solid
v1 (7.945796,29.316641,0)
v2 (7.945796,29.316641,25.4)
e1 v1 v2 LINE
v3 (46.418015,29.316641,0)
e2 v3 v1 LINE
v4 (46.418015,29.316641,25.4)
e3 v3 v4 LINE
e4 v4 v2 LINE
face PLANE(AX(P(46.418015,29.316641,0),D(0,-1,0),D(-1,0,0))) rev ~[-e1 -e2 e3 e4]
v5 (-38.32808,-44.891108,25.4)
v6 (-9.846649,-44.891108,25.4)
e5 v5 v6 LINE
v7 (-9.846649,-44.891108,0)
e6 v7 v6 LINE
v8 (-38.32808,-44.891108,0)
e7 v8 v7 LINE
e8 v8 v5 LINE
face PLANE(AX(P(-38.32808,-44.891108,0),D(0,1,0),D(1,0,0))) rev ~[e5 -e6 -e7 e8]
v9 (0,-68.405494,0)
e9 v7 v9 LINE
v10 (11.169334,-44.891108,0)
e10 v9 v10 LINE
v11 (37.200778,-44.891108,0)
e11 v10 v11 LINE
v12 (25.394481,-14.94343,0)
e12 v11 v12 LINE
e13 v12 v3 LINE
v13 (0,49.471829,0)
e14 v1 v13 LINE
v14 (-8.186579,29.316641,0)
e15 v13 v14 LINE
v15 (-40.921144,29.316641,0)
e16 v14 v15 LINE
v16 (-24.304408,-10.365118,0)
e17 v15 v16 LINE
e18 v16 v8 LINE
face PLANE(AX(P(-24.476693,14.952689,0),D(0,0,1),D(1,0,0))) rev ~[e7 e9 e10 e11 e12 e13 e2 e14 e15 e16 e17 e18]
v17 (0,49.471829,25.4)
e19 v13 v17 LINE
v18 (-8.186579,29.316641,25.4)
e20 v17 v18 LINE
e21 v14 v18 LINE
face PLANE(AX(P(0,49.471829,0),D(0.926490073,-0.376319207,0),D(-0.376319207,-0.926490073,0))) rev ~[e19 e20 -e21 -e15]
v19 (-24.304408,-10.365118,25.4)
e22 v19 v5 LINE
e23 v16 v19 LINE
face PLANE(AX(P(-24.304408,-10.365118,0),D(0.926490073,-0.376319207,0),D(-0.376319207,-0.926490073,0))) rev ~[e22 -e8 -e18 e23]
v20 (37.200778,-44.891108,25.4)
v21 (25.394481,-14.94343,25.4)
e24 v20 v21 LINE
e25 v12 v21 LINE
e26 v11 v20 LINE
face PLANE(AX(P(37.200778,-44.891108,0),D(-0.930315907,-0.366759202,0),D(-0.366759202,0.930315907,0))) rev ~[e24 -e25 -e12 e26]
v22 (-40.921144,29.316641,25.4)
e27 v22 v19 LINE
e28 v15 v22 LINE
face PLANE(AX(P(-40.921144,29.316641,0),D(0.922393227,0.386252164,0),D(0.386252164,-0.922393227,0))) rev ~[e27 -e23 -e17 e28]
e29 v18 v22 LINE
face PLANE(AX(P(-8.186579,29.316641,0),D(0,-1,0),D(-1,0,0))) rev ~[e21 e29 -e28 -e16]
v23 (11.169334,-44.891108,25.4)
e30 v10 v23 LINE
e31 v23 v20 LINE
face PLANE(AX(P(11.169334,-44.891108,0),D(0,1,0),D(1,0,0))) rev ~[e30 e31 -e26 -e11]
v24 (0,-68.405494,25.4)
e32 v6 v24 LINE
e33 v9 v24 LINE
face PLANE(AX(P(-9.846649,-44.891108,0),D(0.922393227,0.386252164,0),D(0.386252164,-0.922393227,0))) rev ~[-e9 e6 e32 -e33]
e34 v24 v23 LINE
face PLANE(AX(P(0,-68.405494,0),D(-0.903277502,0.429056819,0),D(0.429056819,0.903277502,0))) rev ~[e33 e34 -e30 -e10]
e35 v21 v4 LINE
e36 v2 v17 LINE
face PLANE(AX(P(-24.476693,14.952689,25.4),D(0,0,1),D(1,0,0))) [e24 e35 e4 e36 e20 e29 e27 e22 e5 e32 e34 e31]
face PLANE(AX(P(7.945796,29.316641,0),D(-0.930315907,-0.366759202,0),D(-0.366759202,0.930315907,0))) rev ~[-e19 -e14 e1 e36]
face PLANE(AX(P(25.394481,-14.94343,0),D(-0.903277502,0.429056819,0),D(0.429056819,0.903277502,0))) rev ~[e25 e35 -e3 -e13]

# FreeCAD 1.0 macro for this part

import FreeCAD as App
import Part
import Sketcher
Q = App.Units.Quantity

doc = App.newDocument("Part")
body = doc.addObject("PartDesign::Body", "Body")

# Sketch on XY plane
sketch1 = doc.addObject("Sketcher::SketchObject", "Sketch")
body.addObject(sketch1)
sketch1.AttachmentSupport = (doc.XY_Plane, [""])
sketch1.MapMode = "FlatFace"
sketch1.addGeometry(Part.LineSegment(App.Vector(-8, 29, 0), App.Vector(-41, 29, 0)), False)
sketch1.addGeometry(Part.LineSegment(App.Vector(-41, 29, 0), App.Vector(-24, -10, 0)), False)
sketch1.addGeometry(Part.LineSegment(App.Vector(-24, -10, 0), App.Vector(-38, -45, 0)), False)
sketch1.addGeometry(Part.LineSegment(App.Vector(-38, -45, 0), App.Vector(-10, -45, 0)), False)
sketch1.addGeometry(Part.LineSegment(App.Vector(-10, -45, 0), App.Vector(0, -68, 0)), False)
sketch1.addGeometry(Part.LineSegment(App.Vector(0, -68, 0), App.Vector(11, -45, 0)), False)
sketch1.addGeometry(Part.LineSegment(App.Vector(11, -45, 0), App.Vector(37, -45, 0)), False)
sketch1.addGeometry(Part.LineSegment(App.Vector(37, -45, 0), App.Vector(25, -15, 0)), False)
sketch1.addGeometry(Part.LineSegment(App.Vector(25, -15, 0), App.Vector(46, 29, 0)), False)
sketch1.addGeometry(Part.LineSegment(App.Vector(46, 29, 0), App.Vector(8, 29, 0)), False)
sketch1.addGeometry(Part.LineSegment(App.Vector(8, 29, 0), App.Vector(0, 49, 0)), False)
sketch1.addGeometry(Part.LineSegment(App.Vector(0, 49, 0), App.Vector(-8, 29, 0)), False)
sketch1.addConstraint(Sketcher.Constraint("Coincident", 0, 2, 1, 1))
sketch1.addConstraint(Sketcher.Constraint("Coincident", 1, 2, 2, 1))
sketch1.addConstraint(Sketcher.Constraint("Coincident", 2, 2, 3, 1))
sketch1.addConstraint(Sketcher.Constraint("Coincident", 3, 2, 4, 1))
sketch1.addConstraint(Sketcher.Constraint("Coincident", 4, 2, 5, 1))
sketch1.addConstraint(Sketcher.Constraint("Coincident", 5, 2, 6, 1))
sketch1.addConstraint(Sketcher.Constraint("Coincident", 6, 2, 7, 1))
sketch1.addConstraint(Sketcher.Constraint("Coincident", 7, 2, 8, 1))
sketch1.addConstraint(Sketcher.Constraint("Coincident", 8, 2, 9, 1))
sketch1.addConstraint(Sketcher.Constraint("Coincident", 9, 2, 10, 1))
sketch1.addConstraint(Sketcher.Constraint("Coincident", 10, 2, 11, 1))
sketch1.addConstraint(Sketcher.Constraint("Coincident", 11, 2, 0, 1))
sketch1.addConstraint(Sketcher.Constraint("Horizontal", 0))
sketch1.addConstraint(Sketcher.Constraint("Horizontal", 3))
sketch1.addConstraint(Sketcher.Constraint("Horizontal", 6))
sketch1.addConstraint(Sketcher.Constraint("Horizontal", 9))
sketch1.addConstraint(Sketcher.Constraint("PointOnObject", 4, 2, -2))
sketch1.addConstraint(Sketcher.Constraint("PointOnObject", 10, 2, -2))
sketch1.addConstraint(Sketcher.Constraint("Parallel", 1, 4))
sketch1.addConstraint(Sketcher.Constraint("Parallel", 5, 8))
sketch1.addConstraint(Sketcher.Constraint("Parallel", 7, 10))
sketch1.addConstraint(Sketcher.Constraint("Parallel", 2, 11))
sketch1.addConstraint(Sketcher.Constraint("Horizontal", 3, 2, 5, 2))
sketch1.addConstraint(Sketcher.Constraint("Horizontal", 0, 2, 8, 2))
sketch1.addConstraint(Sketcher.Constraint("Distance", 4, Q("25.4928 mm")))
sketch1.addConstraint(Sketcher.Constraint("DistanceX", 3, 1, 3, 2, Q("28.481431 mm")))
sketch1.addConstraint(Sketcher.Constraint("DistanceX", 9, 2, 9, 1, Q("38.472219 mm")))
sketch1.addConstraint(Sketcher.Constraint("Distance", 7, Q("32.190869 mm")))
sketch1.addConstraint(Sketcher.Constraint("Distance", 11, Q("21.754348 mm")))
sketch1.addConstraint(Sketcher.Constraint("DistanceX", 0, 2, 0, 1, Q("32.734565 mm")))
sketch1.addConstraint(Sketcher.Constraint("DistanceX", 6, 1, 6, 2, Q("26.031444 mm")))
sketch1.addConstraint(Sketcher.Constraint("DistanceY", -1, 1, 0, 2, Q("29.316641 mm")))
sketch1.addConstraint(Sketcher.Constraint("DistanceX", 2, 2, -1, 1, Q("38.32808 mm")))
sketch1.addConstraint(Sketcher.Constraint("DistanceX", -1, 1, 7, 2, Q("25.394481 mm")))
sketch1.addConstraint(Sketcher.Constraint("DistanceY", 7, 2, -1, 1, Q("14.94343 mm")))
sketch1.addConstraint(Sketcher.Constraint("DistanceY", -1, 1, 10, 2, Q("49.471829 mm")))
pad1 = doc.addObject("PartDesign::Pad", "Pad")
body.addObject(pad1)
pad1.Profile = sketch1
pad1.Length = Q("1 in")

doc.recompute()
